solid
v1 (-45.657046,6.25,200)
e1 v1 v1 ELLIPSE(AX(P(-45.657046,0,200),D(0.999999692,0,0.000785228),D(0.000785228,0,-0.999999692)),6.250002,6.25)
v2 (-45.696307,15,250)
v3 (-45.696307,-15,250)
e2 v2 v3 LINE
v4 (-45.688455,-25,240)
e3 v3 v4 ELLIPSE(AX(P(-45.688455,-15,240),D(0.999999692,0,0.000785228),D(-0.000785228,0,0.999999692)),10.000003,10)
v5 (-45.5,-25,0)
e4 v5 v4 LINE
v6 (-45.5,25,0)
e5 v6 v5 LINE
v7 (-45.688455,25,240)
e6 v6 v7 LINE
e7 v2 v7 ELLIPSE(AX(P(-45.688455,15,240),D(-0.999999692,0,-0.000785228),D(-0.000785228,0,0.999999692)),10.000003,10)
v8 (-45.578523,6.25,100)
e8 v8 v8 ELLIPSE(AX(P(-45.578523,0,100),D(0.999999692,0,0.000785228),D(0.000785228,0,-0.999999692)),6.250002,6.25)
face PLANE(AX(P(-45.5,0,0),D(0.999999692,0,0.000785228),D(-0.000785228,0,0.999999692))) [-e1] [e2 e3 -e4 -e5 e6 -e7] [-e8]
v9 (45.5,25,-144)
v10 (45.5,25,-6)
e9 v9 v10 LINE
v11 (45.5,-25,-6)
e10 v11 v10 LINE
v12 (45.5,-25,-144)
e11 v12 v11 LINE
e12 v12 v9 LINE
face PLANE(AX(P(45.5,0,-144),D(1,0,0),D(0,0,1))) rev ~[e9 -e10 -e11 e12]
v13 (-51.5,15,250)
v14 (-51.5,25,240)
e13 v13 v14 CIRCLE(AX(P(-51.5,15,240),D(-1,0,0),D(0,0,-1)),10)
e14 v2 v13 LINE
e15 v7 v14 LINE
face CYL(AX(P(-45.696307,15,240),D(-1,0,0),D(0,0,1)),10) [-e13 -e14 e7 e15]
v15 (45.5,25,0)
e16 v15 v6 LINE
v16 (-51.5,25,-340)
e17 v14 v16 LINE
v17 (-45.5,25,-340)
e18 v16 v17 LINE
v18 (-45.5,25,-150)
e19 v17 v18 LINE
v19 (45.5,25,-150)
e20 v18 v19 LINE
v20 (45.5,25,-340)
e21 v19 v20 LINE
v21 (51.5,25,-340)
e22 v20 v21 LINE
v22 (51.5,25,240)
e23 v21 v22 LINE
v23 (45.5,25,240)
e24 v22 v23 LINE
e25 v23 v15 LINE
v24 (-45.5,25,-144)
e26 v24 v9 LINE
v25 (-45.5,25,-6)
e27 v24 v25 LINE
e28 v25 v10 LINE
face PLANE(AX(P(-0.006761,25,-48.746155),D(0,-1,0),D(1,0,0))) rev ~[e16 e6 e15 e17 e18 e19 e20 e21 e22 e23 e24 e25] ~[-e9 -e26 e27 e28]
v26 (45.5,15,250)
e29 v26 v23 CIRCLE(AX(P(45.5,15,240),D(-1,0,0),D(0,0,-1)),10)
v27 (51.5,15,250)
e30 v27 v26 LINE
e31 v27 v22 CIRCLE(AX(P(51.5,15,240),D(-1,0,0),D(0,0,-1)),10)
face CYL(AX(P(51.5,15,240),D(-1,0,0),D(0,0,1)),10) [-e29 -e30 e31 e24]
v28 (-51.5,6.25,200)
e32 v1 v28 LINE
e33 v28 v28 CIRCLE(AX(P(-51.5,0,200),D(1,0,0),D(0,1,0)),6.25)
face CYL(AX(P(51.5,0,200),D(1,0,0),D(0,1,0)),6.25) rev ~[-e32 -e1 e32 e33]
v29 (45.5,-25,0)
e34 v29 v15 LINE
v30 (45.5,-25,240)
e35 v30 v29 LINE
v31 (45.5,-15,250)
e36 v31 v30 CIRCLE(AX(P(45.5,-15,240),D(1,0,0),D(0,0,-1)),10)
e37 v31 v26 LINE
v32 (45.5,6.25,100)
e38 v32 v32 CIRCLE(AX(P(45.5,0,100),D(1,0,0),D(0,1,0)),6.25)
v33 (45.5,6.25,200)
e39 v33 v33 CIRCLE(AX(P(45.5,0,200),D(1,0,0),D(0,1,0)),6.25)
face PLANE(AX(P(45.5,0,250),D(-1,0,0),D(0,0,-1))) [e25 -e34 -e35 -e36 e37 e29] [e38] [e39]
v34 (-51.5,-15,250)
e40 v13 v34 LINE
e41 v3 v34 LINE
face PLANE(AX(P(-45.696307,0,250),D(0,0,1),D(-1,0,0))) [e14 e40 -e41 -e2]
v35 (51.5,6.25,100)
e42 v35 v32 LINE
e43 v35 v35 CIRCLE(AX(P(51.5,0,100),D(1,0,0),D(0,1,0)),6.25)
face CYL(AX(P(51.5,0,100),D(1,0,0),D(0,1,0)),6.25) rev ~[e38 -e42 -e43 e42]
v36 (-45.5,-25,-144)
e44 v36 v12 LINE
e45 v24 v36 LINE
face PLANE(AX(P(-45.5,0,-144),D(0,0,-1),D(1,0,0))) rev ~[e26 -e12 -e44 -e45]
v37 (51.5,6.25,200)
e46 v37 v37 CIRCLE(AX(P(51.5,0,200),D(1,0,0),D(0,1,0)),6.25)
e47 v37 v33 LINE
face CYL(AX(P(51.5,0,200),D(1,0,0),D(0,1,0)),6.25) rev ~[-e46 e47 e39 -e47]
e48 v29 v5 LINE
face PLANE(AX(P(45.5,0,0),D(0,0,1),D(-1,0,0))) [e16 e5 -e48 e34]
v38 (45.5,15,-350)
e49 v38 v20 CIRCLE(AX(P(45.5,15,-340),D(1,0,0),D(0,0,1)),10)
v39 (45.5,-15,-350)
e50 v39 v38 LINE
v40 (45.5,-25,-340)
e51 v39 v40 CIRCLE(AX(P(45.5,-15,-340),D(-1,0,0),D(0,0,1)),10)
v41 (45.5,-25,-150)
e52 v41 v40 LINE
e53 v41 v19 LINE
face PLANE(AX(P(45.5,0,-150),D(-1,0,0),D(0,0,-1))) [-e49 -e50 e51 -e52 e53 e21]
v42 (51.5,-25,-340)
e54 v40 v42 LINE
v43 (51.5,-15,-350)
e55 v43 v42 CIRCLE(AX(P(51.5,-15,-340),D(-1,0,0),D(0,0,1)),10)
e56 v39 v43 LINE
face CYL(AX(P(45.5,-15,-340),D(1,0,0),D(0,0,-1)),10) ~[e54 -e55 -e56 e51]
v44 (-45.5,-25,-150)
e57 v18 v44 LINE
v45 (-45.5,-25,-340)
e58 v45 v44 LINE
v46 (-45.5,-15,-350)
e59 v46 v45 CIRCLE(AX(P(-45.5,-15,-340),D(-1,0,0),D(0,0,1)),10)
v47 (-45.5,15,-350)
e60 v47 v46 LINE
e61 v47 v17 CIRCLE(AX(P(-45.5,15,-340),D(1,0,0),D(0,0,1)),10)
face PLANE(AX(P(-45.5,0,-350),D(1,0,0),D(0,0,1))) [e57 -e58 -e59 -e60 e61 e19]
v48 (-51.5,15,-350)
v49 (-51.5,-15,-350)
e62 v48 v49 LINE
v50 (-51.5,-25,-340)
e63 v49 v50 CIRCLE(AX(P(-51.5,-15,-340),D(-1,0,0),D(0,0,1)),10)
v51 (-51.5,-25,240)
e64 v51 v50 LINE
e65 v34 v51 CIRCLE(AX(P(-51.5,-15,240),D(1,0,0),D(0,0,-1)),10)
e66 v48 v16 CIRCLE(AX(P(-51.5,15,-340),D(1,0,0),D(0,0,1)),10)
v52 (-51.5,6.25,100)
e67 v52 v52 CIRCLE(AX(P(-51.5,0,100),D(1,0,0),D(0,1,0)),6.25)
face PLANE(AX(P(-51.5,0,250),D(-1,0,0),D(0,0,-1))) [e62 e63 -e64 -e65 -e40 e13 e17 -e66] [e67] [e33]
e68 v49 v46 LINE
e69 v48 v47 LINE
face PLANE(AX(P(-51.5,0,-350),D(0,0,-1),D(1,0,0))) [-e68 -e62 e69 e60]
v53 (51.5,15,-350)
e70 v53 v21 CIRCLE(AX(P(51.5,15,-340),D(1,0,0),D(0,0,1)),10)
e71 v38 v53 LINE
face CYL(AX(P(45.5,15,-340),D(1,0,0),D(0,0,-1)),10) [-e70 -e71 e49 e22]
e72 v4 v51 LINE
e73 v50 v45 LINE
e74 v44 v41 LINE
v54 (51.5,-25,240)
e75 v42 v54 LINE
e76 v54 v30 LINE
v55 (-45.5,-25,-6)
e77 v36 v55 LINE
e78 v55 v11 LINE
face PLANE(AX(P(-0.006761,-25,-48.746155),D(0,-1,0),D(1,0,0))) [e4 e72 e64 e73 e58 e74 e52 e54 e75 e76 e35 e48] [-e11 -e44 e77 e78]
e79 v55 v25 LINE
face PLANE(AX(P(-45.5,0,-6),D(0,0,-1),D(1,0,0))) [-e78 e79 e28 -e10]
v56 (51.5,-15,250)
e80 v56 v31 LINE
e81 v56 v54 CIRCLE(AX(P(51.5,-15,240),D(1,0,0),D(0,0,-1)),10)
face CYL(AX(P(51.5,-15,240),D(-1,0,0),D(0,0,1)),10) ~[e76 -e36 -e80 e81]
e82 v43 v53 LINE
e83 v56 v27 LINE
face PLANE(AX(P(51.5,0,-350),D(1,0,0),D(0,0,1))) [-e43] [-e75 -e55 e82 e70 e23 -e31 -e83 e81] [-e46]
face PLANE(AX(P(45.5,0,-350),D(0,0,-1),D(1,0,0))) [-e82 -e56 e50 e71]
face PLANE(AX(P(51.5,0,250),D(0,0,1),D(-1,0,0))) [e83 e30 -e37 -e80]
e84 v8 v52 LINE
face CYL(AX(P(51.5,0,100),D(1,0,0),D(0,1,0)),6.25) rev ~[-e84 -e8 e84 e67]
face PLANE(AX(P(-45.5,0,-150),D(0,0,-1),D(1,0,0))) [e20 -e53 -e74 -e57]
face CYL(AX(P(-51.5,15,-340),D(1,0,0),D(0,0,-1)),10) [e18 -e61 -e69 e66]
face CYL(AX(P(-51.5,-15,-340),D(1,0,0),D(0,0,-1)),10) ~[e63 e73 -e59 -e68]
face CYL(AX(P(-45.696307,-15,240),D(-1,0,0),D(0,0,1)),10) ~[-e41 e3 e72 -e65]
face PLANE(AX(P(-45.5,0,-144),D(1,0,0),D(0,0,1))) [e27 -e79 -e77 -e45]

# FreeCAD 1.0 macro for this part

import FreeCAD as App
import Part
import Sketcher
from FreeCAD import Vector


def edges_at(feature, points):
    """Names of the edges that pass closest to the given points."""
    edges = feature.Shape.Edges
    near = lambda p: min(range(len(edges)), key=lambda i: edges[i].distToShape(Part.Vertex(*p))[0])
    return sorted({f"Edge{near(p) + 1}" for p in points})

doc = App.newDocument("Part")
body = doc.addObject("PartDesign::Body", "Body")

sketch1 = doc.addObject("Sketcher::SketchObject", "Sketch")
body.addObject(sketch1)
sketch1.AttachmentSupport = (doc.XZ_Plane, [""])
sketch1.MapMode = "FlatFace"
sketch1.addGeometry([
    Part.LineSegment(Vector(46, 0, 0), Vector(-46, 0, 0)),
    Part.LineSegment(Vector(-46, 0, 0), Vector(-46, 250, 0)),
    Part.LineSegment(Vector(-46, 250, 0), Vector(-52, 250, 0)),
    Part.LineSegment(Vector(-52, 250, 0), Vector(-52, -350, 0)),
    Part.LineSegment(Vector(-52, -350, 0), Vector(-46, -350, 0)),
    Part.LineSegment(Vector(-46, -350, 0), Vector(-46, -150, 0)),
    Part.LineSegment(Vector(-46, -150, 0), Vector(46, -150, 0)),
    Part.LineSegment(Vector(46, -150, 0), Vector(46, -350, 0)),
    Part.LineSegment(Vector(46, -350, 0), Vector(52, -350, 0)),
    Part.LineSegment(Vector(52, -350, 0), Vector(52, 250, 0)),
    Part.LineSegment(Vector(52, 250, 0), Vector(46, 250, 0)),
    Part.LineSegment(Vector(46, 250, 0), Vector(46, 0, 0)),
    Part.LineSegment(Vector(46, -144, 0), Vector(-46, -144, 0)),
    Part.LineSegment(Vector(-46, -144, 0), Vector(-46, -6, 0)),
    Part.LineSegment(Vector(-46, -6, 0), Vector(46, -6, 0)),
    Part.LineSegment(Vector(46, -6, 0), Vector(46, -144, 0)),
], False)
sketch1.addConstraint([
    Sketcher.Constraint("Coincident", 0, 2, 1, 1),
    Sketcher.Constraint("Coincident", 1, 2, 2, 1),
    Sketcher.Constraint("Coincident", 2, 2, 3, 1),
    Sketcher.Constraint("Coincident", 3, 2, 4, 1),
    Sketcher.Constraint("Coincident", 4, 2, 5, 1),
    Sketcher.Constraint("Coincident", 5, 2, 6, 1),
    Sketcher.Constraint("Coincident", 6, 2, 7, 1),
    Sketcher.Constraint("Coincident", 7, 2, 8, 1),
    Sketcher.Constraint("Coincident", 8, 2, 9, 1),
    Sketcher.Constraint("Coincident", 9, 2, 10, 1),
    Sketcher.Constraint("Coincident", 10, 2, 11, 1),
    Sketcher.Constraint("Coincident", 11, 2, 0, 1),
    Sketcher.Constraint("Coincident", 12, 2, 13, 1),
    Sketcher.Constraint("Coincident", 13, 2, 14, 1),
    Sketcher.Constraint("Coincident", 14, 2, 15, 1),
    Sketcher.Constraint("Coincident", 15, 2, 12, 1),
    Sketcher.Constraint("Horizontal", 0),
    Sketcher.Constraint("Horizontal", 2),
    Sketcher.Constraint("Vertical", 3),
    Sketcher.Constraint("Horizontal", 4),
    Sketcher.Constraint("Vertical", 5),
    Sketcher.Constraint("Horizontal", 6),
    Sketcher.Constraint("Vertical", 7),
    Sketcher.Constraint("Horizontal", 8),
    Sketcher.Constraint("Vertical", 9),
    Sketcher.Constraint("Horizontal", 10),
    Sketcher.Constraint("Vertical", 11),
    Sketcher.Constraint("Horizontal", 12),
    Sketcher.Constraint("Vertical", 13),
    Sketcher.Constraint("Horizontal", 14),
    Sketcher.Constraint("Vertical", 15),
    Sketcher.Constraint("Symmetric", 0, 2, 11, 2, -1, 1),
    Sketcher.Constraint("Symmetric", 4, 2, 7, 2, -2),
    Sketcher.Constraint("Symmetric", 2, 2, 9, 2, -2),
    Sketcher.Constraint("Vertical", 0, 2, 4, 2),
    Sketcher.Constraint("Vertical", 5, 2, 12, 2),
    Sketcher.Constraint("Vertical", 11, 2, 14, 2),
    Sketcher.Constraint("DistanceX", 0, 2, 0, 1, 91.0),
    Sketcher.Constraint("DistanceX", 4, 1, 4, 2, 6.0),
    Sketcher.Constraint("DistanceY", 3, 2, 3, 1, 600.0),
    Sketcher.Constraint("DistanceY", 5, 1, 5, 2, 200.0),
    Sketcher.Constraint("DistanceY", 11, 2, 11, 1, 250.0),
    Sketcher.Constraint("DistanceY", 13, 1, 13, 2, 138.0),
    Sketcher.Constraint("DistanceY", 12, 2, -1, 1, 144.0),
    Sketcher.Constraint("DistanceX", 2, 2, 2, 1, 5.803693),
])
pad1 = doc.addObject("PartDesign::Pad", "Pad")
body.addObject(pad1)
pad1.Profile = sketch1
pad1.Length = 50
pad1.Midplane = True
doc.recompute()

fillet = doc.addObject("PartDesign::Fillet", "Fillet")
body.addObject(fillet)
fillet.Base = (pad1, edges_at(pad1, [
    (48.5, -25, 250),
    (48.5, 25, 250),
    (-48.598, -25, 250),
    (-48.598, 25, 250),
    (48.5, -25, -350),
    (-48.5, -25, -350),
    (48.5, 25, -350),
    (-48.5, 25, -350),
]))
fillet.Radius = 10

sketch2 = doc.addObject("Sketcher::SketchObject", "Sketch001")
body.addObject(sketch2)
sketch2.AttachmentSupport = (doc.YZ_Plane, [""])
sketch2.MapMode = "FlatFace"
sketch2.AttachmentOffset = App.Placement(Vector(0, 0, 51.5), App.Rotation())
sketch2.addGeometry([
    Part.Circle(Vector(0, 200, 0), Vector(0, 0, 1), 6),
    Part.Circle(Vector(0, 100, 0), Vector(0, 0, 1), 6),
], False)
sketch2.addConstraint([
    Sketcher.Constraint("Equal", 0, 1),
    Sketcher.Constraint("PointOnObject", 0, 3, -2),
    Sketcher.Constraint("PointOnObject", 1, 3, -2),
    Sketcher.Constraint("Diameter", 0, 12.5),
    Sketcher.Constraint("DistanceY", -1, 1, 0, 3, 200.0),
    Sketcher.Constraint("DistanceY", -1, 1, 1, 3, 100.0),
])
pocket1 = doc.addObject("PartDesign::Pocket", "Pocket")
body.addObject(pocket1)
pocket1.Profile = sketch2
pocket1.Type = "ThroughAll"

doc.recompute()
